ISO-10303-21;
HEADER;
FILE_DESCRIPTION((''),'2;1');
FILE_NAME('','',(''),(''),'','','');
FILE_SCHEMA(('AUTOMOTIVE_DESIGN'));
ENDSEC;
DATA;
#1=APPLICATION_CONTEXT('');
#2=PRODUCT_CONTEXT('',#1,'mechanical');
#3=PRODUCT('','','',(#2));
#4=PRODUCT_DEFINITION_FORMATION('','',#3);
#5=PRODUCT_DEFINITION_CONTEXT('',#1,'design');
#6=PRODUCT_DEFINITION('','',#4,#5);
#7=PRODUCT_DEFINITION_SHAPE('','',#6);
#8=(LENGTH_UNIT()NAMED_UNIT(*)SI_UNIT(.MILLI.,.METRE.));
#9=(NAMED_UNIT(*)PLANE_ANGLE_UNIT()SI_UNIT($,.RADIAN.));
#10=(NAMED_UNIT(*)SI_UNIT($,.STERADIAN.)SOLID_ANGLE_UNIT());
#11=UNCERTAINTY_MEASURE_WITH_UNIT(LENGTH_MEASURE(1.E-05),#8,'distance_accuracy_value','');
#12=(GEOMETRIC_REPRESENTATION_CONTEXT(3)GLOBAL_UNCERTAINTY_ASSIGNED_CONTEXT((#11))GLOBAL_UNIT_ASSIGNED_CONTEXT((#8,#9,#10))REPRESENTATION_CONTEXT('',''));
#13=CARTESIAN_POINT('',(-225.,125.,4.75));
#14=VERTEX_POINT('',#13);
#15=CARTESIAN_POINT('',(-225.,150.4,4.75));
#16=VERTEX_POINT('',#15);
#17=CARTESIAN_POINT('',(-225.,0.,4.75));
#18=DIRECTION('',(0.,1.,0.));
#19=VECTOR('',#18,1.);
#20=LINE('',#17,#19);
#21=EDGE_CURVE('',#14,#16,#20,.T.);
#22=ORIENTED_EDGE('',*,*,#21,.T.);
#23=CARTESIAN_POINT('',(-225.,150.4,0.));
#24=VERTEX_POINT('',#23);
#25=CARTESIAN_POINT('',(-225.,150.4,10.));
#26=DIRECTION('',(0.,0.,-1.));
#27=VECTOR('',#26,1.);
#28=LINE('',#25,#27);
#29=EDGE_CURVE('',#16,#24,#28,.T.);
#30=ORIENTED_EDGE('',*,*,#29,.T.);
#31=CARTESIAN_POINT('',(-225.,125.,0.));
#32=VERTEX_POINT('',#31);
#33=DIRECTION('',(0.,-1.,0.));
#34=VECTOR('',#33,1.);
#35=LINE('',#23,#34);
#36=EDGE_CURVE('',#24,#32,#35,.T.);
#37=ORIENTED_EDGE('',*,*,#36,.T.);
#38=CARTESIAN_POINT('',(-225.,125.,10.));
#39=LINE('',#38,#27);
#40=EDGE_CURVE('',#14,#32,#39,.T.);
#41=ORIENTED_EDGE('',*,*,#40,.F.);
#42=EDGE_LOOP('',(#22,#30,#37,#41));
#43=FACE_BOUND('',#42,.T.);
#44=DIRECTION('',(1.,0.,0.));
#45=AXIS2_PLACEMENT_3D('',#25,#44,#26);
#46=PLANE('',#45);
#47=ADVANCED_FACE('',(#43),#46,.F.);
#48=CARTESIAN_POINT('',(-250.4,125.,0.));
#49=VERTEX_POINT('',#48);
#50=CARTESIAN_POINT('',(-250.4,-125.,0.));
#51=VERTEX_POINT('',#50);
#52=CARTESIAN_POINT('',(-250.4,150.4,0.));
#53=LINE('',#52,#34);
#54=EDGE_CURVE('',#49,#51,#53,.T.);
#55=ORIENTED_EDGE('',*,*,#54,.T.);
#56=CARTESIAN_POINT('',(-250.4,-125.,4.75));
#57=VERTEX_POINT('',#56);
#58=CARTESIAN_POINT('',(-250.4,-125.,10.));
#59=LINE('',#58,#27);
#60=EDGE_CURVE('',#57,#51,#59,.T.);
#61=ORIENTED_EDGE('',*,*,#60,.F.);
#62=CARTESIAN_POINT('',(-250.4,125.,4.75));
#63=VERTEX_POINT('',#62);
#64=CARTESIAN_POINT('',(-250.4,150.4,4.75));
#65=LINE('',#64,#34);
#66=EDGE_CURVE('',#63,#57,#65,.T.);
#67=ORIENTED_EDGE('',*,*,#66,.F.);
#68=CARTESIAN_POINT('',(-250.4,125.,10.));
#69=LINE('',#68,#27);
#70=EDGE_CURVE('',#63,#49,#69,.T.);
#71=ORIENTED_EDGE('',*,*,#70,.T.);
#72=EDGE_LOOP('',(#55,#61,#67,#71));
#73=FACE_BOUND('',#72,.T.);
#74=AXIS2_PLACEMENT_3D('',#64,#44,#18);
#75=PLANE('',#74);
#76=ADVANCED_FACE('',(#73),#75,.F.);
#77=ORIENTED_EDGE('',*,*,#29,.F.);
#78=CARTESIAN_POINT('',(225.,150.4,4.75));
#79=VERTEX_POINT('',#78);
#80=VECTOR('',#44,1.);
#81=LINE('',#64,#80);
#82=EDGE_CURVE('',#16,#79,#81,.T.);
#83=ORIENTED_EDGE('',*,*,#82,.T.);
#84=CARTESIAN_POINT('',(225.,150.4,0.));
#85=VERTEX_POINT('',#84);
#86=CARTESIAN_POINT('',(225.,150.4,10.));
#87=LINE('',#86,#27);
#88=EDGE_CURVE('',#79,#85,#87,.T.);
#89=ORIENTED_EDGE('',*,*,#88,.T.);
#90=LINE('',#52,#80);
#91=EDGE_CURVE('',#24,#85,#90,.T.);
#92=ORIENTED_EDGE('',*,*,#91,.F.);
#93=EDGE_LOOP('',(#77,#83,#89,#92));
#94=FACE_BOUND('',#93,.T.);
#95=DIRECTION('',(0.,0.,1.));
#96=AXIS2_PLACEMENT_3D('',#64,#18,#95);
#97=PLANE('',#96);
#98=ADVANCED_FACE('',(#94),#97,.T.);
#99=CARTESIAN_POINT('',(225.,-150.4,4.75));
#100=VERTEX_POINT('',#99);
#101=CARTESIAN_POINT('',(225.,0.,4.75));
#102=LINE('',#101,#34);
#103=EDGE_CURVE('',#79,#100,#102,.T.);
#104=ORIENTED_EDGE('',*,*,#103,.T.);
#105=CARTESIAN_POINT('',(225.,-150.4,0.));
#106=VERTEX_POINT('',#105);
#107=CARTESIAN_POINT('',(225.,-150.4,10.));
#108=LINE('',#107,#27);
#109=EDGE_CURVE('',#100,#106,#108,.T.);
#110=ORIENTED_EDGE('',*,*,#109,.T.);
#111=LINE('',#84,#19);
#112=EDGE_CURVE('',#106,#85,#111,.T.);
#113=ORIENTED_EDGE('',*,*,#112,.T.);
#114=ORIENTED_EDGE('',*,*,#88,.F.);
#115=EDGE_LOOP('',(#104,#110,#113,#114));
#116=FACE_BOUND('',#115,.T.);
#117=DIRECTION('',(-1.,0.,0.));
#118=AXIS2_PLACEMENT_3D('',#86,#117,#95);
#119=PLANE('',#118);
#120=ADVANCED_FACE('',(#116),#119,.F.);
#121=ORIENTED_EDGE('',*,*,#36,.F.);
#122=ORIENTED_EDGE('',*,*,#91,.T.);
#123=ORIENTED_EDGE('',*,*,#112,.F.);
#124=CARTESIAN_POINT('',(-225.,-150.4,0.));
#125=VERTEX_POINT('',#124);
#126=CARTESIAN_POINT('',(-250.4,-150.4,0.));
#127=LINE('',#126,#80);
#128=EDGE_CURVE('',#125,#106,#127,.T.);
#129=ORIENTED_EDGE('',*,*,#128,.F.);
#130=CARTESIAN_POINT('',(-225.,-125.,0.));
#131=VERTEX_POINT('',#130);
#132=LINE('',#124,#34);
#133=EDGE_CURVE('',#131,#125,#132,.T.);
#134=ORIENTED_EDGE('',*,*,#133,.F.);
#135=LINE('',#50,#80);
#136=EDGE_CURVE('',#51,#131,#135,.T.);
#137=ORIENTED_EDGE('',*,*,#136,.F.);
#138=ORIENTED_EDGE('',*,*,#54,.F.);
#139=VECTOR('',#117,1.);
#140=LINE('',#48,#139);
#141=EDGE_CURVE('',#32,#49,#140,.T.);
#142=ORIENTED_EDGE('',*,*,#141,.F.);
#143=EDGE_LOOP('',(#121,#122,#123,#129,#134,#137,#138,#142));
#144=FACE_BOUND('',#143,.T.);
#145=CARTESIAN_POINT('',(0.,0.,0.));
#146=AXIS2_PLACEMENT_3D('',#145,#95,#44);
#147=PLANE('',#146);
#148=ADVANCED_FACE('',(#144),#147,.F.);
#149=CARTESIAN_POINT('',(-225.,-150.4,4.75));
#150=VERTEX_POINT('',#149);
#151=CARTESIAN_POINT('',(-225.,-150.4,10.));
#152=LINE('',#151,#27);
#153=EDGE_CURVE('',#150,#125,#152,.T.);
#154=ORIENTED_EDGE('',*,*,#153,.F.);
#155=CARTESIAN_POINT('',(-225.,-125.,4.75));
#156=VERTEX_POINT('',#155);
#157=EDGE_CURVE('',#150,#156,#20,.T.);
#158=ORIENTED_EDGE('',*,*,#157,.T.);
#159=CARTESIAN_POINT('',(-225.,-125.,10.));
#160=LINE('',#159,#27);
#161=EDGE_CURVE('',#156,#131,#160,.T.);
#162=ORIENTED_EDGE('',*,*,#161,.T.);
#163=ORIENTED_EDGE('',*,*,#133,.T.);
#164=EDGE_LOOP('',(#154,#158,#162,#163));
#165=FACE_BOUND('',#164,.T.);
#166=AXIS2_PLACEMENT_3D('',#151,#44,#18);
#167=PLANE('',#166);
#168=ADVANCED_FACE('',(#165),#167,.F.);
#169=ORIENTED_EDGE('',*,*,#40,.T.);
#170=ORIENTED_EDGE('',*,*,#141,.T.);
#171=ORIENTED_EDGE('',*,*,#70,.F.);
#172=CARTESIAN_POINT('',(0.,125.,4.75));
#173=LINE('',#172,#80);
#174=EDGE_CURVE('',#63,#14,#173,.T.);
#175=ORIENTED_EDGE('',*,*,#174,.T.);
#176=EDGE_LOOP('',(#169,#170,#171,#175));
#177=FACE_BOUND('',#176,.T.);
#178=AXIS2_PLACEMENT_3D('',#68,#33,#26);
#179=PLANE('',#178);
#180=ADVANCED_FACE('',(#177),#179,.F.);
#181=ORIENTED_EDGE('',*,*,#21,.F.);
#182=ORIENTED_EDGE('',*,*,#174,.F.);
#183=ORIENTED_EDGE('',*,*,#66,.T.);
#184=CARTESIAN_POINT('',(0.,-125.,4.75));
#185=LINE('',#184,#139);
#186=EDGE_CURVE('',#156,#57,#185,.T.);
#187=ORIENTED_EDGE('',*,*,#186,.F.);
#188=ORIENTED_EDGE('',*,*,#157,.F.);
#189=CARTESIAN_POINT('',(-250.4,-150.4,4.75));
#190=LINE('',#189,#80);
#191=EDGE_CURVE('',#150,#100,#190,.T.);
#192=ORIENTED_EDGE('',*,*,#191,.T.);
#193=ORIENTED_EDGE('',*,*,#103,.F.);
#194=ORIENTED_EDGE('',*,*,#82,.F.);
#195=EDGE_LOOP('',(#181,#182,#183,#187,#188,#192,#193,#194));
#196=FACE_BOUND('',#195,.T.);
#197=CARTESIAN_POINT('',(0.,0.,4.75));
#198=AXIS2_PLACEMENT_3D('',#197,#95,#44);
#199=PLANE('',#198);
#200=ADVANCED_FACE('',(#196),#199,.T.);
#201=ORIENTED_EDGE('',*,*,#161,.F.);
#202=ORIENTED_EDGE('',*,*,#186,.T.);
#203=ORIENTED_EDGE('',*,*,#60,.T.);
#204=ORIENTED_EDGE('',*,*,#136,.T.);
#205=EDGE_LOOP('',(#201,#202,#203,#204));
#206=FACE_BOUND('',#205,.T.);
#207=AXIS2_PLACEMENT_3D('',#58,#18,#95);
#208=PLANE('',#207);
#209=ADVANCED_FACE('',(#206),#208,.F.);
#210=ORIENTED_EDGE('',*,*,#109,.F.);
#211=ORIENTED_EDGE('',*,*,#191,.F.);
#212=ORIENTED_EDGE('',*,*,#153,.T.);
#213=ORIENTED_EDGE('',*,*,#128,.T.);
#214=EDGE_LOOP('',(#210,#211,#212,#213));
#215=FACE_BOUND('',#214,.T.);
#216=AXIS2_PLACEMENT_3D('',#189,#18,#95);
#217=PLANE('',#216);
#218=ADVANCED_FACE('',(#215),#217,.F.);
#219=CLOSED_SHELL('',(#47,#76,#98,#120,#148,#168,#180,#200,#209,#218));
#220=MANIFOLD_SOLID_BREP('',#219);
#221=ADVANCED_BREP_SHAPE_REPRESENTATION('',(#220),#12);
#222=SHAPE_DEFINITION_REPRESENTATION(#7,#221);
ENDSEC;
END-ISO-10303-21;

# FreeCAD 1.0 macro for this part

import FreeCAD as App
import Part
import Sketcher

V = App.Vector
Q = App.Units.Quantity

doc = App.newDocument("Part")
body = doc.addObject("PartDesign::Body", "Body")

# Sketch on XY plane
sketch1 = doc.addObject("Sketcher::SketchObject", "Sketch")
body.addObject(sketch1)
sketch1.AttachmentSupport = (doc.XY_Plane, [""])
sketch1.MapMode = "FlatFace"
sketch1.addGeometry(Part.LineSegment(V(-250, 150, 0), V(-250, -150, 0)), False)
sketch1.addGeometry(Part.LineSegment(V(-250, -150, 0), V(250, -150, 0)), False)
sketch1.addGeometry(Part.LineSegment(V(250, -150, 0), V(250, 150, 0)), False)
sketch1.addGeometry(Part.LineSegment(V(250, 150, 0), V(-250, 150, 0)), False)
sketch1.addConstraint(Sketcher.Constraint("Coincident", 0, 2, 1, 1))
sketch1.addConstraint(Sketcher.Constraint("Coincident", 1, 2, 2, 1))
sketch1.addConstraint(Sketcher.Constraint("Coincident", 2, 2, 3, 1))
sketch1.addConstraint(Sketcher.Constraint("Coincident", 3, 2, 0, 1))
sketch1.addConstraint(Sketcher.Constraint("Vertical", 0))
sketch1.addConstraint(Sketcher.Constraint("Horizontal", 1))
sketch1.addConstraint(Sketcher.Constraint("Vertical", 2))
sketch1.addConstraint(Sketcher.Constraint("Horizontal", 3))
sketch1.addConstraint(Sketcher.Constraint("Symmetric", 0, 2, 2, 2, -1, 1))
sketch1.addConstraint(Sketcher.Constraint("DistanceX", 1, 1, 1, 2, Q("500.8 mm")))
sketch1.addConstraint(Sketcher.Constraint("DistanceY", 0, 2, 0, 1, Q("300.8 mm")))
pad1 = doc.addObject("PartDesign::Pad", "Pad")
body.addObject(pad1)
pad1.Profile = sketch1
pad1.Length = 4.75

# Sketch on XY plane
sketch2 = doc.addObject("Sketcher::SketchObject", "Sketch001")
body.addObject(sketch2)
sketch2.AttachmentSupport = (doc.XY_Plane, [""])
sketch2.MapMode = "FlatFace"
sketch2.addGeometry(Part.LineSegment(V(225, 150, 0), V(250, 150, 0)), False)
sketch2.addGeometry(Part.LineSegment(V(250, 150, 0), V(250, -150, 0)), False)
sketch2.addGeometry(Part.LineSegment(V(250, -150, 0), V(225, -150, 0)), False)
sketch2.addGeometry(Part.LineSegment(V(225, -150, 0), V(225, 150, 0)), False)
sketch2.addGeometry(Part.LineSegment(V(-225, 150, 0), V(-225, 125, 0)), False)
sketch2.addGeometry(Part.LineSegment(V(-225, 125, 0), V(-250, 125, 0)), False)
sketch2.addGeometry(Part.LineSegment(V(-250, 125, 0), V(-250, 150, 0)), False)
sketch2.addGeometry(Part.LineSegment(V(-250, 150, 0), V(-225, 150, 0)), False)
sketch2.addGeometry(Part.LineSegment(V(-225, -125, 0), V(-225, -150, 0)), False)
sketch2.addGeometry(Part.LineSegment(V(-225, -150, 0), V(-250, -150, 0)), False)
sketch2.addGeometry(Part.LineSegment(V(-250, -150, 0), V(-250, -125, 0)), False)
sketch2.addGeometry(Part.LineSegment(V(-250, -125, 0), V(-225, -125, 0)), False)
sketch2.addConstraint(Sketcher.Constraint("Coincident", 0, 2, 1, 1))
sketch2.addConstraint(Sketcher.Constraint("Coincident", 1, 2, 2, 1))
sketch2.addConstraint(Sketcher.Constraint("Coincident", 2, 2, 3, 1))
sketch2.addConstraint(Sketcher.Constraint("Coincident", 3, 2, 0, 1))
sketch2.addConstraint(Sketcher.Constraint("Coincident", 4, 2, 5, 1))
sketch2.addConstraint(Sketcher.Constraint("Coincident", 5, 2, 6, 1))
sketch2.addConstraint(Sketcher.Constraint("Coincident", 6, 2, 7, 1))
sketch2.addConstraint(Sketcher.Constraint("Coincident", 7, 2, 4, 1))
sketch2.addConstraint(Sketcher.Constraint("Coincident", 8, 2, 9, 1))
sketch2.addConstraint(Sketcher.Constraint("Coincident", 9, 2, 10, 1))
sketch2.addConstraint(Sketcher.Constraint("Coincident", 10, 2, 11, 1))
sketch2.addConstraint(Sketcher.Constraint("Coincident", 11, 2, 8, 1))
sketch2.addConstraint(Sketcher.Constraint("Horizontal", 0))
sketch2.addConstraint(Sketcher.Constraint("Vertical", 1))
sketch2.addConstraint(Sketcher.Constraint("Horizontal", 2))
sketch2.addConstraint(Sketcher.Constraint("Vertical", 3))
sketch2.addConstraint(Sketcher.Constraint("Vertical", 4))
sketch2.addConstraint(Sketcher.Constraint("Horizontal", 5))
sketch2.addConstraint(Sketcher.Constraint("Vertical", 6))
sketch2.addConstraint(Sketcher.Constraint("Horizontal", 7))
sketch2.addConstraint(Sketcher.Constraint("Vertical", 8))
sketch2.addConstraint(Sketcher.Constraint("Horizontal", 9))
sketch2.addConstraint(Sketcher.Constraint("Vertical", 10))
sketch2.addConstraint(Sketcher.Constraint("Horizontal", 11))
sketch2.addConstraint(Sketcher.Constraint("Symmetric", 1, 2, 6, 2, -1, 1))
sketch2.addConstraint(Sketcher.Constraint("Symmetric", 3, 2, 8, 2, -1, 1))
sketch2.addConstraint(Sketcher.Constraint("Symmetric", 3, 2, 7, 2, -2))
sketch2.addConstraint(Sketcher.Constraint("Symmetric", 5, 2, 10, 2, -1))
sketch2.addConstraint(Sketcher.Constraint("Equal", 11, 4))
sketch2.addConstraint(Sketcher.Constraint("DistanceX", 0, 1, 0, 2, Q("25.4 mm")))
sketch2.addConstraint(Sketcher.Constraint("DistanceY", 1, 2, 1, 1, Q("300.8 mm")))
sketch2.addConstraint(Sketcher.Constraint("DistanceX", -1, 1, 2, 2, Q("225 mm")))
pocket1 = doc.addObject("PartDesign::Pocket", "Pocket")
body.addObject(pocket1)
pocket1.Profile = sketch2
pocket1.Length = 10
pocket1.Reversed = True

doc.recompute()
